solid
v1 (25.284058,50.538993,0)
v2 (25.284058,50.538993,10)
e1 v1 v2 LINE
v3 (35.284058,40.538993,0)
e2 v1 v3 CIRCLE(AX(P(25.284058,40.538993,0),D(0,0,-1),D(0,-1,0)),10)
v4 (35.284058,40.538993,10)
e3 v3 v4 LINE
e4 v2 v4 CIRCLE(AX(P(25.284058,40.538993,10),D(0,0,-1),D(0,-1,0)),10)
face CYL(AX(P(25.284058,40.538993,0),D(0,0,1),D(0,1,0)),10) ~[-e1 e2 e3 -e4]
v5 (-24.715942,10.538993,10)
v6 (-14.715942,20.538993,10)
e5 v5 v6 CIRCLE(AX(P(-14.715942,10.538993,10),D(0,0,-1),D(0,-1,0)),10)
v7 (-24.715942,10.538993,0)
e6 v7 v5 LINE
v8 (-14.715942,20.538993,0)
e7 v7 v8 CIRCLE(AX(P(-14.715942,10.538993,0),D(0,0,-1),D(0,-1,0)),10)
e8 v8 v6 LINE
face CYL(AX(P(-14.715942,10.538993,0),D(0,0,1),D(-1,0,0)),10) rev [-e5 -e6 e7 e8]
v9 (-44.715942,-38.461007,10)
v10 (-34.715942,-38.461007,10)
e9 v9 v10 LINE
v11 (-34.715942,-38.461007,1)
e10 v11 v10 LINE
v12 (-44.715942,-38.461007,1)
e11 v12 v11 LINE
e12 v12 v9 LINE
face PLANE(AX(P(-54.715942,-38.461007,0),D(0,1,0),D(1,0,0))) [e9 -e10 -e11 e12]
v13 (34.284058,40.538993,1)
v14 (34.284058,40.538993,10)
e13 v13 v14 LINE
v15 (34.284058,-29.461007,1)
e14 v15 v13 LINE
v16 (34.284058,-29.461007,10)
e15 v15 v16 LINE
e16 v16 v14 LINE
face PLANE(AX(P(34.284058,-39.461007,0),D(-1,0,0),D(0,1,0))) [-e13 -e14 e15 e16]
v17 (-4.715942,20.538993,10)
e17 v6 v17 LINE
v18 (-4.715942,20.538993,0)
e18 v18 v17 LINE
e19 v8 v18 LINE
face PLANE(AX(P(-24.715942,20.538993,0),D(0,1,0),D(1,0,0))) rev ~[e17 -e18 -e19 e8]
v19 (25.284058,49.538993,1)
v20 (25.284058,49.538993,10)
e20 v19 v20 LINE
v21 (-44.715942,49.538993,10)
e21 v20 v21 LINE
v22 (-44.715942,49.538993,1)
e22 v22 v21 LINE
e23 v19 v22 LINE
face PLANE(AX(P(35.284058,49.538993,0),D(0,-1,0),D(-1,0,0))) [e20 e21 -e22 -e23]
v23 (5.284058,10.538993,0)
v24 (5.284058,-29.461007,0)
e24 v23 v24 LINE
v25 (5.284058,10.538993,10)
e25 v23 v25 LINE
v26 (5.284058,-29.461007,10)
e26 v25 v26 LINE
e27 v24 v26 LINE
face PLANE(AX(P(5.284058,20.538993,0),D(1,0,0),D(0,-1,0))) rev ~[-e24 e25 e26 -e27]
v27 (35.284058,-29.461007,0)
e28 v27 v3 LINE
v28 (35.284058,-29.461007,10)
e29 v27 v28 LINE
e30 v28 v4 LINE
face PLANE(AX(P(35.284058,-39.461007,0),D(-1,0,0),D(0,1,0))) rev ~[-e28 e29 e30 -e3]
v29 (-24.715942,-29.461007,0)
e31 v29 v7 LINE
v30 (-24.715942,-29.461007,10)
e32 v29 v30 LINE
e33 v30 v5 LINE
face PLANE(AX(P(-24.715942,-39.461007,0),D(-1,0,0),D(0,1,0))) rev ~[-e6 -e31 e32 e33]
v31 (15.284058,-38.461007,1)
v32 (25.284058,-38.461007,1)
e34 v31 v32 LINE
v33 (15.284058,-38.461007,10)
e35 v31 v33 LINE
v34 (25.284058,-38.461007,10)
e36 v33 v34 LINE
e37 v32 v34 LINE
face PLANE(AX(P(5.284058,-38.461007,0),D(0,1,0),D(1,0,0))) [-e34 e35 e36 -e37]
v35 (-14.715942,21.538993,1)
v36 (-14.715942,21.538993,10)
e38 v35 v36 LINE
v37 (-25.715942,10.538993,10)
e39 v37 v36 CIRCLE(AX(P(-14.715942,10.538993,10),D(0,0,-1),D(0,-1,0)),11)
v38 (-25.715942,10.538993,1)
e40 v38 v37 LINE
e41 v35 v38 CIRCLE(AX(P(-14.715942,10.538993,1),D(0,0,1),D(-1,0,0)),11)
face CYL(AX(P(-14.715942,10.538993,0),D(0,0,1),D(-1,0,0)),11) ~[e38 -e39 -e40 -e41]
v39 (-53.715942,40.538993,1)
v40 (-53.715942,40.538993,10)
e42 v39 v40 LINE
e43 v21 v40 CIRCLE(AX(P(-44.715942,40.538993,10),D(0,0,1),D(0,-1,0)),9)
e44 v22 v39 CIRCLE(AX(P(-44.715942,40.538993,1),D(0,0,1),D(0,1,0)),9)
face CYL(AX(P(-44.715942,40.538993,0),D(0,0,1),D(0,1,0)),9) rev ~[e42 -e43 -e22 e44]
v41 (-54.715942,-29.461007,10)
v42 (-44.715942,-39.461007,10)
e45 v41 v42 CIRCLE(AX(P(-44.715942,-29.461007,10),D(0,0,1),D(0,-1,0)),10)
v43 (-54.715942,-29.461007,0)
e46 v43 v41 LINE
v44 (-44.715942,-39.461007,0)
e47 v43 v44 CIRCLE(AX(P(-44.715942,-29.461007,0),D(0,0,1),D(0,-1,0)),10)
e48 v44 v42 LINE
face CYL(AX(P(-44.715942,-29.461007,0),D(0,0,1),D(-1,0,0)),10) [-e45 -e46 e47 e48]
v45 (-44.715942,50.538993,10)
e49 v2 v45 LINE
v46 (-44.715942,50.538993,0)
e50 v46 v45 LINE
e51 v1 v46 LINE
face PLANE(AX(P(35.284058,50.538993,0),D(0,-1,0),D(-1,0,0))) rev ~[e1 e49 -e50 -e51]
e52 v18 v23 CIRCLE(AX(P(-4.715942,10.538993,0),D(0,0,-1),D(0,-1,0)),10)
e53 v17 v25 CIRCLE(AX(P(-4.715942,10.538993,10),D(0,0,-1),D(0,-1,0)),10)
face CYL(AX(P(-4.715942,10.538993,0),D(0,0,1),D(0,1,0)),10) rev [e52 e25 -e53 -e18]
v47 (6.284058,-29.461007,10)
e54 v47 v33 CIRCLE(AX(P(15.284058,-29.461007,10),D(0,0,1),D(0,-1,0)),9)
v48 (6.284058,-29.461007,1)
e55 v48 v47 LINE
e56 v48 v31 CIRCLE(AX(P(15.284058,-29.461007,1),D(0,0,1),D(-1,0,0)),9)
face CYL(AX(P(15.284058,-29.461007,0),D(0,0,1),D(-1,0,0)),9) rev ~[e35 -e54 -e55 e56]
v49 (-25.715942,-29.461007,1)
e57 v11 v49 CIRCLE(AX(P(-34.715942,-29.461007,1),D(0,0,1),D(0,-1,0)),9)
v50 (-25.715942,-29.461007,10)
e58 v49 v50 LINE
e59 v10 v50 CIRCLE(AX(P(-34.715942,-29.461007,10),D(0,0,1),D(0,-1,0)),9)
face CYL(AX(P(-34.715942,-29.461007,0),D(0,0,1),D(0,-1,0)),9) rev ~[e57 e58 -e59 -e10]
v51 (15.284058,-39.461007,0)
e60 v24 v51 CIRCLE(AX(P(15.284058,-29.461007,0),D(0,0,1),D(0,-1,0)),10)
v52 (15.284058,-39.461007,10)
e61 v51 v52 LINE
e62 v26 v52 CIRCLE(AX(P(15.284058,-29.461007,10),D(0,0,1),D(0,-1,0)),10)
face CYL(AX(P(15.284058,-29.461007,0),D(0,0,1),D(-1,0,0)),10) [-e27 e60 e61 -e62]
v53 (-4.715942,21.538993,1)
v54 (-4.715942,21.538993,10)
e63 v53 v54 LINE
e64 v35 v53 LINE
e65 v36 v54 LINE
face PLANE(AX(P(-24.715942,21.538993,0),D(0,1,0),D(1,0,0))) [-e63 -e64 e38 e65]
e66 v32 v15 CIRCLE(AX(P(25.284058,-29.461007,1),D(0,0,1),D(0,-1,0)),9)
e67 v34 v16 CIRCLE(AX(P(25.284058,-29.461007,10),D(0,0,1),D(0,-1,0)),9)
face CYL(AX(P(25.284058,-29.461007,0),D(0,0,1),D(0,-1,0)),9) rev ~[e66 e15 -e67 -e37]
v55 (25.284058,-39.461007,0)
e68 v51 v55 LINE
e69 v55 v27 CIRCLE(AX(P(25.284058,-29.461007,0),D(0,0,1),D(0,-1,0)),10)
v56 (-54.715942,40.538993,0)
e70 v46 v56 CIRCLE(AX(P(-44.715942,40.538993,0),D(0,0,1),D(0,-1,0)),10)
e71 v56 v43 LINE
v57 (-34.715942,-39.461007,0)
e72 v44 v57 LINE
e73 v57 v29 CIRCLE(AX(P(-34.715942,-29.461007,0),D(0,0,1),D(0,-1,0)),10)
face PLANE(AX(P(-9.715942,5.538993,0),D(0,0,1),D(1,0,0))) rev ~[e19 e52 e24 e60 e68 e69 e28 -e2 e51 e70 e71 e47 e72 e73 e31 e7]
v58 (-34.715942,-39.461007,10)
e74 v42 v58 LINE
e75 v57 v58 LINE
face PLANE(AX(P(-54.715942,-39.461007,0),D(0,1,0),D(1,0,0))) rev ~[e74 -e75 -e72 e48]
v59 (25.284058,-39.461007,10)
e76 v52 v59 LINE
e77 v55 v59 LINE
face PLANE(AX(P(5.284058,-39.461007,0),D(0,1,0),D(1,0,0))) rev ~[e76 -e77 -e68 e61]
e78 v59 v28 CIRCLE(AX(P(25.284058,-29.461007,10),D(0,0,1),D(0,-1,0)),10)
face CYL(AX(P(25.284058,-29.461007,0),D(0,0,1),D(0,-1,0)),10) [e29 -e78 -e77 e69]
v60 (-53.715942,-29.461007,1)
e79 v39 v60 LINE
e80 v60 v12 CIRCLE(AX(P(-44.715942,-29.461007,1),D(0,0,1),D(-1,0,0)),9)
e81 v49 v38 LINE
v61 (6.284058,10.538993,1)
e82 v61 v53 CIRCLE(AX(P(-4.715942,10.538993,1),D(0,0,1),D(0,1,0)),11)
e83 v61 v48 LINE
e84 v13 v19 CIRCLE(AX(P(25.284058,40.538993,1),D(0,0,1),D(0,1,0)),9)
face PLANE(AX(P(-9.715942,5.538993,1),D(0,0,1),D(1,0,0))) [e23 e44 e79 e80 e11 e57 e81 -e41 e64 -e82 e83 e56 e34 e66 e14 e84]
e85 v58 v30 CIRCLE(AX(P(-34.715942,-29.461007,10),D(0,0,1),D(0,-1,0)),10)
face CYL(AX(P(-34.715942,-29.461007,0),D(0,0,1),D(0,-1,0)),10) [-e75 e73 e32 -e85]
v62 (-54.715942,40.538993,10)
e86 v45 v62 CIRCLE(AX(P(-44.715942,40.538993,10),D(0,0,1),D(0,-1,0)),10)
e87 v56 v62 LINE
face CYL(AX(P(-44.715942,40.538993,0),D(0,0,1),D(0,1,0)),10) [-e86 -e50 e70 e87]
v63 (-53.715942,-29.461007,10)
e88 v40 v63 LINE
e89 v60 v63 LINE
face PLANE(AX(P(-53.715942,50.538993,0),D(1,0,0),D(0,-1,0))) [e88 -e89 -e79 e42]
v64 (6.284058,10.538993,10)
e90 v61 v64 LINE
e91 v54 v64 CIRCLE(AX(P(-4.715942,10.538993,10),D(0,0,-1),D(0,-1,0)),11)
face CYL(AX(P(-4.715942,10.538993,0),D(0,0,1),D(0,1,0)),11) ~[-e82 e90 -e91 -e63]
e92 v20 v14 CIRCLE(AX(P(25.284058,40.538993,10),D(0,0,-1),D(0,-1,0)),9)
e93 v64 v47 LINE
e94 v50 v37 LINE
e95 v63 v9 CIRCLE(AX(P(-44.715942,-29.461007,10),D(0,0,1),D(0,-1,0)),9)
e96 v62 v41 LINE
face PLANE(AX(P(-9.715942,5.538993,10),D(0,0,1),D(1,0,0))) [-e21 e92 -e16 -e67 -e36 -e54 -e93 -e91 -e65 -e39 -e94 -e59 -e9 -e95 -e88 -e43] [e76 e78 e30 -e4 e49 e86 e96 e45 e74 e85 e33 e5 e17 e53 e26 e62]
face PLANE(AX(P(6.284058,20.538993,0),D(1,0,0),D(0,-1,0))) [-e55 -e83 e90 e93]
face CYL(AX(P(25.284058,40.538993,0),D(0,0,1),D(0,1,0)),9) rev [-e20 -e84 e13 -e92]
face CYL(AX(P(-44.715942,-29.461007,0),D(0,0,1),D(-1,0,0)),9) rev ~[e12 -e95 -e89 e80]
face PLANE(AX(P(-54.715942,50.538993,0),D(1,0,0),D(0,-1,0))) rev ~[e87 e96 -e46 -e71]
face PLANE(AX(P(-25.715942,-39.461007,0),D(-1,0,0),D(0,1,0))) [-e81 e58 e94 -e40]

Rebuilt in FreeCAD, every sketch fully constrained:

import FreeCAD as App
import Part
import Sketcher
Q = App.Units.Quantity


def edges_at(feature, points):
    """Names of the edges that pass closest to the given points."""
    edges = feature.Shape.Edges
    near = lambda p: min(range(len(edges)), key=lambda i: edges[i].distToShape(Part.Vertex(*p))[0])
    return sorted({f"Edge{near(p) + 1}" for p in points})


def faces_at(feature, points):
    """Names of the faces that lie closest to the given points."""
    faces = feature.Shape.Faces
    near = lambda p: min(range(len(faces)), key=lambda i: faces[i].distToShape(Part.Vertex(*p))[0])
    return sorted({f"Face{near(p) + 1}" for p in points})


def add_polygon(sketch, points):
    """Adds a closed chain of lines whose ends are joined by coincident constraints."""
    first, n = sketch.GeometryCount, len(points)
    for a, b in zip(points, points[1:] + points[:1]):
        sketch.addGeometry(Part.LineSegment(App.Vector(*a, 0), App.Vector(*b, 0)), False)
    for i in range(n):
        sketch.addConstraint(Sketcher.Constraint("Coincident", first + i, 2, first + (i + 1) % n, 1))

doc = App.newDocument("Part")
body = doc.addObject("PartDesign::Body", "Body")

# Sketch on XY plane
sketch1 = body.newObject("Sketcher::SketchObject", "Sketch")
sketch1.AttachmentSupport = (doc.getObject("XY_Plane"), [""])
sketch1.MapMode = "FlatFace"
add_polygon(sketch1, [(35, 51), (-55, 51), (-55, -39), (-25, -39), (-25, 21), (5, 21), (5, -39), (35, -39)])  # lines 0-7
sketch1.addConstraint(Sketcher.Constraint("Horizontal", 0))
sketch1.addConstraint(Sketcher.Constraint("Vertical", 1))
sketch1.addConstraint(Sketcher.Constraint("Horizontal", 2))
sketch1.addConstraint(Sketcher.Constraint("Vertical", 3))
sketch1.addConstraint(Sketcher.Constraint("Horizontal", 4))
sketch1.addConstraint(Sketcher.Constraint("Vertical", 5))
sketch1.addConstraint(Sketcher.Constraint("Horizontal", 6))
sketch1.addConstraint(Sketcher.Constraint("Vertical", 7))
sketch1.addConstraint(Sketcher.Constraint("Horizontal", 2, 2, 5, 2))
sketch1.addConstraint(Sketcher.Constraint("Equal", 2, 4))
sketch1.addConstraint(Sketcher.Constraint("Equal", 4, 6))
sketch1.addConstraint(Sketcher.Constraint("Equal", 0, 1))
sketch1.addConstraint(Sketcher.Constraint("DistanceX", 0, 2, 0, 1, Q("90 mm")))
sketch1.addConstraint(Sketcher.Constraint("DistanceY", 3, 1, 3, 2, Q("60 mm")))
sketch1.addConstraint(Sketcher.Constraint("DistanceX", 0, 2, -1, 1, Q("54.715942 mm")))
sketch1.addConstraint(Sketcher.Constraint("DistanceY", -1, 1, 0, 2, Q("50.538993 mm")))
pad1 = body.newObject("PartDesign::Pad", "Pad")
pad1.Profile = sketch1
pad1.Length = 10
doc.recompute()

fillet = body.newObject("PartDesign::Fillet", "Fillet")
fillet.Base = (pad1, edges_at(pad1, [
    (35.284, 50.539, 5),
    (35.284, -39.461, 5),
    (-24.716, 20.539, 5),
    (-24.716, -39.461, 5),
    (-54.716, -39.461, 5),
    (5.284, -39.461, 5),
    (5.284, 20.539, 5),
    (-54.716, 50.539, 5),
]))
fillet.Radius = 10
doc.recompute()

thickness = body.newObject("PartDesign::Thickness", "Thickness")
thickness.Base = (fillet, faces_at(fillet, [(-27.716, -12.461, 10)]))
thickness.Value = 1
thickness.Reversed = True
thickness.Join = "Arc"

doc.recompute()
